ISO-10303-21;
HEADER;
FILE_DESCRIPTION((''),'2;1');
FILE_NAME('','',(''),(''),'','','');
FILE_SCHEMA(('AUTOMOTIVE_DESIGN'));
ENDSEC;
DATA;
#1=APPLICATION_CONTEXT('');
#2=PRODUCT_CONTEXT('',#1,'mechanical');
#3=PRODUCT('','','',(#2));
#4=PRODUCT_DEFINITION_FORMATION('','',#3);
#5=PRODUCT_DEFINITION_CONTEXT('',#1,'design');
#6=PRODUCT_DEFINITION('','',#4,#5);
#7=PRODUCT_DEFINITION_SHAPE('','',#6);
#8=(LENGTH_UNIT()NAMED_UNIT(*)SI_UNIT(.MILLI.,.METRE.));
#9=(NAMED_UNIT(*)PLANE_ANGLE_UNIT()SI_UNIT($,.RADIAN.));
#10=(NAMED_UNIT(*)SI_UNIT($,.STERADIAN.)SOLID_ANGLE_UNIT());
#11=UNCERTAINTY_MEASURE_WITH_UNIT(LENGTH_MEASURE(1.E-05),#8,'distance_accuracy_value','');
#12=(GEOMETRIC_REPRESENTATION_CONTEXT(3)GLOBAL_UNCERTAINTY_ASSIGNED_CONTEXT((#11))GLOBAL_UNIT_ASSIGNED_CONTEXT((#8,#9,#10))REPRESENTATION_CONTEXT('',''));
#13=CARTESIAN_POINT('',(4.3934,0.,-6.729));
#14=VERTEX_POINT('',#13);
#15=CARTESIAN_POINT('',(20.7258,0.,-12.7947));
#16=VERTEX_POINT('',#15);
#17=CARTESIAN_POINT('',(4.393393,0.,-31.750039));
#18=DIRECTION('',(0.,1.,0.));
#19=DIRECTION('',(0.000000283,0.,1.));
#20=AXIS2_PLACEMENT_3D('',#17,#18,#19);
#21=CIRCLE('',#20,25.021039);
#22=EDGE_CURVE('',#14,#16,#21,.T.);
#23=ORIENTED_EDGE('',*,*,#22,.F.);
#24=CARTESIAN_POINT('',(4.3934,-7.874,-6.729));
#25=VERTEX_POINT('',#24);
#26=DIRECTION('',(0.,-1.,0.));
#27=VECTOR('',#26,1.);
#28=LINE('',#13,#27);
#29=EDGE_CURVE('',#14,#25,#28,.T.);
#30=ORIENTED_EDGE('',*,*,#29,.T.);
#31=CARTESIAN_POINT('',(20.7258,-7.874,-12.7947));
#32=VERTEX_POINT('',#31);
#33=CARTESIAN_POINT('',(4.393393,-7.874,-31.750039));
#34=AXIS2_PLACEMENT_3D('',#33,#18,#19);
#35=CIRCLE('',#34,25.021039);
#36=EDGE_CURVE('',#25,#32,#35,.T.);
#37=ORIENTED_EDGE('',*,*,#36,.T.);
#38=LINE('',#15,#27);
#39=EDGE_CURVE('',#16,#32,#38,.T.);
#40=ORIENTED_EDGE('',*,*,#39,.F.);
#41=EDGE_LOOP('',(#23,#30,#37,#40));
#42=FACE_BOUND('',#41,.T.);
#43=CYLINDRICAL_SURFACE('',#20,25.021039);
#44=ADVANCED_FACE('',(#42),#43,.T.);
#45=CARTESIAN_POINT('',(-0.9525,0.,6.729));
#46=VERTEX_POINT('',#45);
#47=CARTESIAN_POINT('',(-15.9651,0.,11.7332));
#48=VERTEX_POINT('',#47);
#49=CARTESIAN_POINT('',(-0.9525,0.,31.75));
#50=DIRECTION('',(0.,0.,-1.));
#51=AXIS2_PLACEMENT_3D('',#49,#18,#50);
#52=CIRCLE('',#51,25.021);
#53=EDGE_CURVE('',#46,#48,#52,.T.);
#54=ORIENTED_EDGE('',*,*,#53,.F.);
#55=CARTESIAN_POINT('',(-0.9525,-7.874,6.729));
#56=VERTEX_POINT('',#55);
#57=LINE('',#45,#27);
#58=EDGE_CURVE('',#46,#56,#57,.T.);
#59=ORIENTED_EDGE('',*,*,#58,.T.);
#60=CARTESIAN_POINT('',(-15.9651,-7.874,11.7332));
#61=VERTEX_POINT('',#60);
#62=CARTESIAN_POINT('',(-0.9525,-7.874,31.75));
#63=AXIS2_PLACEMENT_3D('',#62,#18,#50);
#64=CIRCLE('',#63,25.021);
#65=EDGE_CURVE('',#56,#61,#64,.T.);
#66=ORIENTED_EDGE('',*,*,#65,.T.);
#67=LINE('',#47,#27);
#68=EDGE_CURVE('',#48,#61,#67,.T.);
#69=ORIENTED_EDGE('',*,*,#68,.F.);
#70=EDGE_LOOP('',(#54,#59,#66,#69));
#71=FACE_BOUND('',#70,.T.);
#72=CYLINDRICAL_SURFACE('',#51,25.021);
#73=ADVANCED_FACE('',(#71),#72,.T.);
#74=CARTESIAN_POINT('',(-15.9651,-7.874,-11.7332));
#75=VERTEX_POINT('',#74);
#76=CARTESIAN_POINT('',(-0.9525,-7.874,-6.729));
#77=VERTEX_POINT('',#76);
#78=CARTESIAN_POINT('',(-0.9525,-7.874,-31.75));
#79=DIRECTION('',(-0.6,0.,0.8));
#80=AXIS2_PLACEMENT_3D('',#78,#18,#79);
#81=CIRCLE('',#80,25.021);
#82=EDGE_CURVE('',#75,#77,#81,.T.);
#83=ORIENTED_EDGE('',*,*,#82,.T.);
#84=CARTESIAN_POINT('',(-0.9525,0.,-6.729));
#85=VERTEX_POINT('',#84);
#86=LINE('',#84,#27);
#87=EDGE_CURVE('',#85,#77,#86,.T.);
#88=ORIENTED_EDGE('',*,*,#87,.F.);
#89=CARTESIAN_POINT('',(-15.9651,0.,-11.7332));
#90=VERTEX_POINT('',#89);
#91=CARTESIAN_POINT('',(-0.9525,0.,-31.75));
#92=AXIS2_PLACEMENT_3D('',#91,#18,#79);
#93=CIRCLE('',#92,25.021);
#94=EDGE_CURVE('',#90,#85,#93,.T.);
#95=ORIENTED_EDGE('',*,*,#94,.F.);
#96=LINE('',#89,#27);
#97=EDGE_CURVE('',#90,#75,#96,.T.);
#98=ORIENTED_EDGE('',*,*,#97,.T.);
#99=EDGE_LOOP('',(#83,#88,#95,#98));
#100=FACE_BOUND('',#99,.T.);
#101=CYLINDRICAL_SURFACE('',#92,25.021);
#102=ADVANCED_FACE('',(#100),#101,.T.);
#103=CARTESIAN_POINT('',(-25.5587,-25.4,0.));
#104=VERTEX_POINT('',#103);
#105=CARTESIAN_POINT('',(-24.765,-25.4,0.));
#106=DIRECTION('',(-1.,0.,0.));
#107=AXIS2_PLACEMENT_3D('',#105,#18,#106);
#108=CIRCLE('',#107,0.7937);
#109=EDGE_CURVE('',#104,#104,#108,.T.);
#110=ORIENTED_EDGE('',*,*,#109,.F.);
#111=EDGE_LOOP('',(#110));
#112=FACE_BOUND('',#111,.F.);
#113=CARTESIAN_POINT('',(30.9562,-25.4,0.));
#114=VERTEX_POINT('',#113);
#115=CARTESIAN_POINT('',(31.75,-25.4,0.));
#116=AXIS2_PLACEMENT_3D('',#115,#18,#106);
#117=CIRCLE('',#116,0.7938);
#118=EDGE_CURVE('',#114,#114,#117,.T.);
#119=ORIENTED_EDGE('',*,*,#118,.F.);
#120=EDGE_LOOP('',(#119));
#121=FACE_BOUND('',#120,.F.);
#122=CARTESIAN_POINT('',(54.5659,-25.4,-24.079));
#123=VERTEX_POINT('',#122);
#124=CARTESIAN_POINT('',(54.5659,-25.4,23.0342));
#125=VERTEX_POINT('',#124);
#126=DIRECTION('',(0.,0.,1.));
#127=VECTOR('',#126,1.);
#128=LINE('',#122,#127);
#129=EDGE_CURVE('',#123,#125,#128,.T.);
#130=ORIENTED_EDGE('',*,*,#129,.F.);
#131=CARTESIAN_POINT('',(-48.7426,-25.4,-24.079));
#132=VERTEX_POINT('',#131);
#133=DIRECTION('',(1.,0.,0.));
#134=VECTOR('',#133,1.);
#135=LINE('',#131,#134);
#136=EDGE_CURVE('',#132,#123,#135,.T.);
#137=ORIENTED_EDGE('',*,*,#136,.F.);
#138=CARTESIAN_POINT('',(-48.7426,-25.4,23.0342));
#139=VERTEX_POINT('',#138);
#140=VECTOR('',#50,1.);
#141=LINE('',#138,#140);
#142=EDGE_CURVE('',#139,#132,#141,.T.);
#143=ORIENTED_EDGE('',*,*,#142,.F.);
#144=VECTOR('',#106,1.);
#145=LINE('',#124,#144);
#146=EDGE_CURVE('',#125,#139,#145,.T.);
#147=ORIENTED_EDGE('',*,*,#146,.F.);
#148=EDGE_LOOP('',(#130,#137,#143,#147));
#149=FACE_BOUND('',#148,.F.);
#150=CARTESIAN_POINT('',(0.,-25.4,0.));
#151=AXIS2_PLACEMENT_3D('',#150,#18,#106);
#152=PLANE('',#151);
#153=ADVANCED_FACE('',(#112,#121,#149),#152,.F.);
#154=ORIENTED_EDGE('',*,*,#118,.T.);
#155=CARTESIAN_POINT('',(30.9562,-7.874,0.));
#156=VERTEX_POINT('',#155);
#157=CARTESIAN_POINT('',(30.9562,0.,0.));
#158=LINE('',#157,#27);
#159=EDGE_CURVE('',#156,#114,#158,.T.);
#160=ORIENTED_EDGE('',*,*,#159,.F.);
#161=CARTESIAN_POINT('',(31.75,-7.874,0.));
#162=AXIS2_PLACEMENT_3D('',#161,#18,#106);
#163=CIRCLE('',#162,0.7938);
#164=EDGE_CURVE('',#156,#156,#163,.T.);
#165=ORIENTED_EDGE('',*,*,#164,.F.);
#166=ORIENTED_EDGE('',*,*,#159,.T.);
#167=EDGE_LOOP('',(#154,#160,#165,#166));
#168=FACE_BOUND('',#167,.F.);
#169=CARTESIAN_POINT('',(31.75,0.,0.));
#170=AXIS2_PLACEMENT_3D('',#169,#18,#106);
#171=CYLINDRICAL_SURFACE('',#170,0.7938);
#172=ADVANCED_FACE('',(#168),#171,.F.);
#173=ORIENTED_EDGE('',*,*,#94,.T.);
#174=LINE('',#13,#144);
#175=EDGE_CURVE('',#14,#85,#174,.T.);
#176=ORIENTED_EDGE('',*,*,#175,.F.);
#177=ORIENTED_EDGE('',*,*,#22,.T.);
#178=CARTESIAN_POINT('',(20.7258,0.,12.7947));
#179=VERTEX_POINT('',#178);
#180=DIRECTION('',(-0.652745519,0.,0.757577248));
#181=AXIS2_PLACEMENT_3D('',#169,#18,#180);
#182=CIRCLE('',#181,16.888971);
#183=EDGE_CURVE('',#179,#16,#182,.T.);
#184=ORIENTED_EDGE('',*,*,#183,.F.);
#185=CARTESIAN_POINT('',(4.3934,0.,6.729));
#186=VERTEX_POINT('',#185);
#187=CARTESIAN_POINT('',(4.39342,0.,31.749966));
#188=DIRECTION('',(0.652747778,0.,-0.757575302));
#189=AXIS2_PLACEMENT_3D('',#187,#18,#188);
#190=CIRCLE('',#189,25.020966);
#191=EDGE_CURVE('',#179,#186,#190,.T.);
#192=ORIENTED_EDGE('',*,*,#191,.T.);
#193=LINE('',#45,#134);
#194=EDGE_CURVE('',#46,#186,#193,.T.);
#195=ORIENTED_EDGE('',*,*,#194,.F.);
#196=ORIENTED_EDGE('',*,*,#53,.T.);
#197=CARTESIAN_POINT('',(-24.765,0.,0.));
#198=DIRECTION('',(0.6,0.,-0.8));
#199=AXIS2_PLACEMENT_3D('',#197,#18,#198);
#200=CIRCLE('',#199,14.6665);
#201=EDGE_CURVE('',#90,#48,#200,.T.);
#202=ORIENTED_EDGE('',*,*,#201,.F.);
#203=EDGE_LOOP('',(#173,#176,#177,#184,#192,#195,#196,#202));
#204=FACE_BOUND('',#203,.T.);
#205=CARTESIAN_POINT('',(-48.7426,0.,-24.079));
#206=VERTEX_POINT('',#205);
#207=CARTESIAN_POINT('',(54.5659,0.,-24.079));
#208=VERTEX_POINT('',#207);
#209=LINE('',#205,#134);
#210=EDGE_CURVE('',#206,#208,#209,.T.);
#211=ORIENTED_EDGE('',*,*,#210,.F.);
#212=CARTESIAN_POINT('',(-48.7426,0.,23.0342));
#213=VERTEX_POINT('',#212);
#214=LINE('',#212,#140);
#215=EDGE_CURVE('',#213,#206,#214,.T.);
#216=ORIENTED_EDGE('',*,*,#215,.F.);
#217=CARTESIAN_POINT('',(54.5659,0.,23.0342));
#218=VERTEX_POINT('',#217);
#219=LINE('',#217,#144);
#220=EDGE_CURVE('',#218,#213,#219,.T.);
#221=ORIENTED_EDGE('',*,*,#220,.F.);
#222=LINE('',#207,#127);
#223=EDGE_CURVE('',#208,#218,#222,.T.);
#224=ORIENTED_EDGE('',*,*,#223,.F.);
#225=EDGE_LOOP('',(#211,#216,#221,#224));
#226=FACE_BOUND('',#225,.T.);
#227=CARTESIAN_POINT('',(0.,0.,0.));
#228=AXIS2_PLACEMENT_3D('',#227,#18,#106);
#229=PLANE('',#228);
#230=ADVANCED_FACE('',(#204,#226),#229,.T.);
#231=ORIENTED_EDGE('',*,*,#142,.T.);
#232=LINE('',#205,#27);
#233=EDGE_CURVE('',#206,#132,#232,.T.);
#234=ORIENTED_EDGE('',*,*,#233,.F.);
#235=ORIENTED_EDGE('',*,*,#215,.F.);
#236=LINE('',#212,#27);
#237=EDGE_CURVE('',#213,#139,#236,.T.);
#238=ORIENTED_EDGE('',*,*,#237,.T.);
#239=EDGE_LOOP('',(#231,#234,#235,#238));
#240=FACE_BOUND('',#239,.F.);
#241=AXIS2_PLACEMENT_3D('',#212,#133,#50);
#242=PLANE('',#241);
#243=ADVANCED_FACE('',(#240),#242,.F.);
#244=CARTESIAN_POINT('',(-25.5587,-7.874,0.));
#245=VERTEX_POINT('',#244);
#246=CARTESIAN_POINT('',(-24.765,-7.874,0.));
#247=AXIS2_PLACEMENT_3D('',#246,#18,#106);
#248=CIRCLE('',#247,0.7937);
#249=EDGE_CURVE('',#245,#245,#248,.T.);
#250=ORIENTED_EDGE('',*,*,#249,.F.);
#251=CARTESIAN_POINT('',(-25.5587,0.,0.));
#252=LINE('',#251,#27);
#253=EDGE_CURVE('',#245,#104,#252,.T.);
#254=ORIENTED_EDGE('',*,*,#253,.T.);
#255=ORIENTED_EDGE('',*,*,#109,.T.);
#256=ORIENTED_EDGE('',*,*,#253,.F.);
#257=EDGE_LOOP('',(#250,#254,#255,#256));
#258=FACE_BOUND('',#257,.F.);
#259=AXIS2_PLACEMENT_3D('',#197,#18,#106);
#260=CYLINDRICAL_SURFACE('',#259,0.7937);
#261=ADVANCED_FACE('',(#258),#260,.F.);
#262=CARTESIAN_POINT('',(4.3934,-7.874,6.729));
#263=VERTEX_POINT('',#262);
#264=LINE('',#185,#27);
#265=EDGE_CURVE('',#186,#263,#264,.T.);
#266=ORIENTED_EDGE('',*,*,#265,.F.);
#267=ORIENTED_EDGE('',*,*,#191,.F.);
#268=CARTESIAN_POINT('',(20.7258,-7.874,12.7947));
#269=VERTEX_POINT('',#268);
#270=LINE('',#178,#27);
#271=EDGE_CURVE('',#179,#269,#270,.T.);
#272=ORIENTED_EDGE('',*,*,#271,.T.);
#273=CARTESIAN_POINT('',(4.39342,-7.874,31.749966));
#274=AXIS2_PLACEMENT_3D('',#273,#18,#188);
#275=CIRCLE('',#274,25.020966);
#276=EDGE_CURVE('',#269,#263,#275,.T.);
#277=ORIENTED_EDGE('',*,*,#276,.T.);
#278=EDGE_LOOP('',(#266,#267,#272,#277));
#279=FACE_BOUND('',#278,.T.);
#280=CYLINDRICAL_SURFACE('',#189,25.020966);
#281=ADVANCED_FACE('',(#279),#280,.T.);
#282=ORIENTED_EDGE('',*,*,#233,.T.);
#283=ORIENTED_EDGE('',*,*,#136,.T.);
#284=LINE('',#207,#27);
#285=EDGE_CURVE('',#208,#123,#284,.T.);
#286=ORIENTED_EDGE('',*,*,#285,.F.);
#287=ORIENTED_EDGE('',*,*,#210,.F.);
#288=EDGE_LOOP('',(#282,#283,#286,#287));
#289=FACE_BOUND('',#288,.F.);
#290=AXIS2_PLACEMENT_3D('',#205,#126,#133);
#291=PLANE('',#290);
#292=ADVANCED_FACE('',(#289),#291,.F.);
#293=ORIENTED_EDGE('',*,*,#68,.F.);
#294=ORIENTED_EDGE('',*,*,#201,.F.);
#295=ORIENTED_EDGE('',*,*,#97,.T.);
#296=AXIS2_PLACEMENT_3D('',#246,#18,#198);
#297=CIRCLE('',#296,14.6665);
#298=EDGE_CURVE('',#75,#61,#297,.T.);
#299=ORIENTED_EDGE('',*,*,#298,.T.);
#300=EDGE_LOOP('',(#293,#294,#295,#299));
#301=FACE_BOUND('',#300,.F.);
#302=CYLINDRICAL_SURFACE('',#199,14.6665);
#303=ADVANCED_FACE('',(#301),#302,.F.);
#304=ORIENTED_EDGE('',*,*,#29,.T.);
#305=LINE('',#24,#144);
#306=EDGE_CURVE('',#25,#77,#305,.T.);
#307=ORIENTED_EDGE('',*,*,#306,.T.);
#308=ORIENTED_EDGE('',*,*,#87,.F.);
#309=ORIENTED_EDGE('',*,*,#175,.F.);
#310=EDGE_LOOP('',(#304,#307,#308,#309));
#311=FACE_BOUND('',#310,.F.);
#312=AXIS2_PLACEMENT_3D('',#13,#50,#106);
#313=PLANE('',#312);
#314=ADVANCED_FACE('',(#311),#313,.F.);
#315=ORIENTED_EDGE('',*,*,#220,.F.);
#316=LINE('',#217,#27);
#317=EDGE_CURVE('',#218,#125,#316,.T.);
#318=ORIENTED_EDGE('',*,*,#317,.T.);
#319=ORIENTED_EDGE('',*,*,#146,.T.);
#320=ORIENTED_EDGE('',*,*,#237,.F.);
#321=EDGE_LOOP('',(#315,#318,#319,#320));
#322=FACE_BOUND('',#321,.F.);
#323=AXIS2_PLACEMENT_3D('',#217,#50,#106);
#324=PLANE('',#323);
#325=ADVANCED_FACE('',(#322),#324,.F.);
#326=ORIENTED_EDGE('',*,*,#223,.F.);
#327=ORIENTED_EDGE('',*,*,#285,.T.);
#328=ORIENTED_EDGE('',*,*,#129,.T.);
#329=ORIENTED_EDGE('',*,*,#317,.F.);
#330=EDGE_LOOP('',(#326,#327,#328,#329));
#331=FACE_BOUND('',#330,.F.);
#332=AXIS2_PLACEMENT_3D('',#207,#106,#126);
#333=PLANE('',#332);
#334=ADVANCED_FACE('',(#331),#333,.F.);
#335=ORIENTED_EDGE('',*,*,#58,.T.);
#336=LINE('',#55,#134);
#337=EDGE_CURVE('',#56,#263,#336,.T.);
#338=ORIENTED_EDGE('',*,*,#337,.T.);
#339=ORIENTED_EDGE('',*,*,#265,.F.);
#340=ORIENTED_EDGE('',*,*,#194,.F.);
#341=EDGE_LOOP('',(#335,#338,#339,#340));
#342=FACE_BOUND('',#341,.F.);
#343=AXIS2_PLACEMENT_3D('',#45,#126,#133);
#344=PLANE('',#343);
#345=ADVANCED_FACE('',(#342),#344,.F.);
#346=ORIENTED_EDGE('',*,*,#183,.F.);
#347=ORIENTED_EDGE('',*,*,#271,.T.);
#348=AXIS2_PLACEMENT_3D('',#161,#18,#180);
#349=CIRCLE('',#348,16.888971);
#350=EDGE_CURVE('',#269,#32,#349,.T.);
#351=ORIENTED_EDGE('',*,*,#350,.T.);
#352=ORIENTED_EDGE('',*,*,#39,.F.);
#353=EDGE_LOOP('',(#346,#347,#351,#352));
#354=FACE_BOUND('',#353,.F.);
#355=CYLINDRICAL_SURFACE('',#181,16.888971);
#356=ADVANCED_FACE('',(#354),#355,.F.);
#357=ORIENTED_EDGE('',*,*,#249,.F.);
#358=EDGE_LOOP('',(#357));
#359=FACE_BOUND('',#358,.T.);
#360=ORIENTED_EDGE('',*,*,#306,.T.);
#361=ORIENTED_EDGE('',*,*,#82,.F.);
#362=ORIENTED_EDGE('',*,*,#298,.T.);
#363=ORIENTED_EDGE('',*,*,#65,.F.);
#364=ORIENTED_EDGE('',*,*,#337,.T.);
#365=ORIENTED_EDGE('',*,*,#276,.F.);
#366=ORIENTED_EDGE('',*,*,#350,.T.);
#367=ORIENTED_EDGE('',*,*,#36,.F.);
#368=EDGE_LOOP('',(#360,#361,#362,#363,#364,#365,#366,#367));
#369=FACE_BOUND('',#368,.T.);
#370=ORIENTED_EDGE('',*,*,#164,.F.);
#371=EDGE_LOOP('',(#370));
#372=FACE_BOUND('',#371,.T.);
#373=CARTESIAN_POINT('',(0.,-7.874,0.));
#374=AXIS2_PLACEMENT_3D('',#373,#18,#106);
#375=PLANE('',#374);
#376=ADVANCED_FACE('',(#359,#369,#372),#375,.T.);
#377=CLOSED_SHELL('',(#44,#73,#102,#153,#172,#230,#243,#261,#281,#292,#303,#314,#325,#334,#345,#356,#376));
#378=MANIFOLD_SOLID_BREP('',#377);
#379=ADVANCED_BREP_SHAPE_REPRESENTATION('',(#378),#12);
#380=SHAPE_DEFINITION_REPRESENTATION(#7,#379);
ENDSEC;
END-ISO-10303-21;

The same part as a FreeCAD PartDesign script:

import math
import FreeCAD as App
import Part
import Sketcher
from FreeCAD import Vector
Q = App.Units.Quantity

doc = App.newDocument("Part")
body = doc.addObject("PartDesign::Body", "Body")

# Sketch on XZ plane
sketch1 = body.newObject("Sketcher::SketchObject", "Sketch")
sketch1.AttachmentSupport = (doc.getObject("XZ_Plane"), [""])
sketch1.MapMode = "FlatFace"
sketch1.addGeometry(Part.LineSegment(Vector(-49, 23, 0), Vector(55, 23, 0)), False)
sketch1.addGeometry(Part.LineSegment(Vector(55, 23, 0), Vector(55, -24, 0)), False)
sketch1.addGeometry(Part.LineSegment(Vector(55, -24, 0), Vector(-49, -24, 0)), False)
sketch1.addGeometry(Part.LineSegment(Vector(-49, -24, 0), Vector(-49, 23, 0)), False)
sketch1.addConstraint(Sketcher.Constraint("Coincident", 0, 2, 1, 1))
sketch1.addConstraint(Sketcher.Constraint("Coincident", 1, 2, 2, 1))
sketch1.addConstraint(Sketcher.Constraint("Coincident", 2, 2, 3, 1))
sketch1.addConstraint(Sketcher.Constraint("Coincident", 3, 2, 0, 1))
sketch1.addConstraint(Sketcher.Constraint("Horizontal", 0))
sketch1.addConstraint(Sketcher.Constraint("Vertical", 1))
sketch1.addConstraint(Sketcher.Constraint("Horizontal", 2))
sketch1.addConstraint(Sketcher.Constraint("Vertical", 3))
sketch1.addConstraint(Sketcher.Constraint("DistanceY", 1, 2, -1, 1, Q("0.948 in")))
sketch1.addConstraint(Sketcher.Constraint("DistanceX", 2, 2, -1, 1, Q("1.919 in")))
sketch1.addConstraint(Sketcher.Constraint("DistanceX", 0, 1, 0, 2, 103.3085))
sketch1.addConstraint(Sketcher.Constraint("DistanceY", 1, 2, 1, 1, 47.1132))
pad1 = body.newObject("PartDesign::Pad", "Pad")
pad1.Profile = sketch1
pad1.Length = Q("1 in")

# Sketch on XZ plane
sketch2 = body.newObject("Sketcher::SketchObject", "Sketch001")
sketch2.AttachmentSupport = (doc.getObject("XZ_Plane"), [""])
sketch2.MapMode = "FlatFace"
sketch2.addGeometry(Part.ArcOfCircle(Part.Circle(Vector(-1, 32, 0), Vector(0, 0, 1), 25), math.radians(-127), math.radians(-90)), False)
sketch2.addGeometry(Part.LineSegment(Vector(-1, 7, 0), Vector(4, 7, 0)), False)
sketch2.addGeometry(Part.ArcOfCircle(Part.Circle(Vector(4, 32, 0), Vector(0, 0, 1), 25), math.radians(-90), math.radians(-49)), False)
sketch2.addGeometry(Part.ArcOfCircle(Part.Circle(Vector(32, 0, 0), Vector(0, 0, 1), 17), math.radians(-131), math.radians(131)), False)
sketch2.addGeometry(Part.ArcOfCircle(Part.Circle(Vector(4, -32, 0), Vector(0, 0, 1), 25), math.radians(49), math.radians(90)), False)
sketch2.addGeometry(Part.LineSegment(Vector(4, -7, 0), Vector(-1, -7, 0)), False)
sketch2.addGeometry(Part.ArcOfCircle(Part.Circle(Vector(-1, -32, 0), Vector(0, 0, 1), 25), math.radians(90), math.radians(127)), False)
sketch2.addGeometry(Part.ArcOfCircle(Part.Circle(Vector(-25, 0, 0), Vector(0, 0, 1), 15), math.radians(53), math.radians(307)), False)
sketch2.addConstraint(Sketcher.Constraint("Tangent", 0, 2, 1, 1))
sketch2.addConstraint(Sketcher.Constraint("Tangent", 1, 2, 2, 1))
sketch2.addConstraint(Sketcher.Constraint("Tangent", 2, 2, 3, 2))
sketch2.addConstraint(Sketcher.Constraint("Tangent", 3, 1, 4, 1))
sketch2.addConstraint(Sketcher.Constraint("Tangent", 4, 2, 5, 1))
sketch2.addConstraint(Sketcher.Constraint("Tangent", 5, 2, 6, 1))
sketch2.addConstraint(Sketcher.Constraint("Tangent", 6, 2, 7, 2))
sketch2.addConstraint(Sketcher.Constraint("Tangent", 7, 1, 0, 1))
sketch2.addConstraint(Sketcher.Constraint("Horizontal", 1))
sketch2.addConstraint(Sketcher.Constraint("Horizontal", 5))
sketch2.addConstraint(Sketcher.Constraint("Equal", 0, 2))
sketch2.addConstraint(Sketcher.Constraint("Equal", 2, 4))
sketch2.addConstraint(Sketcher.Constraint("Equal", 4, 6))
sketch2.addConstraint(Sketcher.Constraint("Symmetric", 2, 3, 4, 3, -1))
sketch2.addConstraint(Sketcher.Constraint("PointOnObject", 7, 3, -1))
sketch2.addConstraint(Sketcher.Constraint("DistanceX", 7, 3, 3, 3, Q("2.225 in")))
sketch2.addConstraint(Sketcher.Constraint("DistanceY", 4, 3, 2, 3, Q("2.5 in")))
sketch2.addConstraint(Sketcher.Constraint("DistanceX", -1, 1, 3, 3, Q("1.25 in")))
sketch2.addConstraint(Sketcher.Constraint("Radius", 0, 25.021))
sketch2.addConstraint(Sketcher.Constraint("Radius", 3, 16.889))
sketch2.addConstraint(Sketcher.Constraint("Radius", 7, 14.6665))
pocket1 = body.newObject("PartDesign::Pocket", "Pocket")
pocket1.Profile = sketch2
pocket1.Length = Q("0.31 in")
pocket1.Reversed = True

# Sketch on XZ plane
sketch3 = body.newObject("Sketcher::SketchObject", "Sketch002")
sketch3.AttachmentSupport = (doc.getObject("XZ_Plane"), [""])
sketch3.MapMode = "FlatFace"
sketch3.addGeometry(Part.Circle(Vector(-24.8, 0, 0), Vector(0, 0, 1), 0.8), False)
sketch3.addGeometry(Part.Circle(Vector(31.8, 0, 0), Vector(0, 0, 1), 0.8), False)
sketch3.addConstraint(Sketcher.Constraint("Equal", 0, 1))
sketch3.addConstraint(Sketcher.Constraint("PointOnObject", 0, 3, -1))
sketch3.addConstraint(Sketcher.Constraint("PointOnObject", 1, 3, -1))
sketch3.addConstraint(Sketcher.Constraint("Diameter", 0, Q("0.0625 in")))
sketch3.addConstraint(Sketcher.Constraint("DistanceX", 0, 3, 1, 3, Q("2.225 in")))
sketch3.addConstraint(Sketcher.Constraint("DistanceX", -1, 1, 1, 3, Q("1.25 in")))
pocket2 = body.newObject("PartDesign::Pocket", "Pocket001")
pocket2.Profile = sketch3
pocket2.Length = Q("10 in")
pocket2.Reversed = True

doc.recompute()
